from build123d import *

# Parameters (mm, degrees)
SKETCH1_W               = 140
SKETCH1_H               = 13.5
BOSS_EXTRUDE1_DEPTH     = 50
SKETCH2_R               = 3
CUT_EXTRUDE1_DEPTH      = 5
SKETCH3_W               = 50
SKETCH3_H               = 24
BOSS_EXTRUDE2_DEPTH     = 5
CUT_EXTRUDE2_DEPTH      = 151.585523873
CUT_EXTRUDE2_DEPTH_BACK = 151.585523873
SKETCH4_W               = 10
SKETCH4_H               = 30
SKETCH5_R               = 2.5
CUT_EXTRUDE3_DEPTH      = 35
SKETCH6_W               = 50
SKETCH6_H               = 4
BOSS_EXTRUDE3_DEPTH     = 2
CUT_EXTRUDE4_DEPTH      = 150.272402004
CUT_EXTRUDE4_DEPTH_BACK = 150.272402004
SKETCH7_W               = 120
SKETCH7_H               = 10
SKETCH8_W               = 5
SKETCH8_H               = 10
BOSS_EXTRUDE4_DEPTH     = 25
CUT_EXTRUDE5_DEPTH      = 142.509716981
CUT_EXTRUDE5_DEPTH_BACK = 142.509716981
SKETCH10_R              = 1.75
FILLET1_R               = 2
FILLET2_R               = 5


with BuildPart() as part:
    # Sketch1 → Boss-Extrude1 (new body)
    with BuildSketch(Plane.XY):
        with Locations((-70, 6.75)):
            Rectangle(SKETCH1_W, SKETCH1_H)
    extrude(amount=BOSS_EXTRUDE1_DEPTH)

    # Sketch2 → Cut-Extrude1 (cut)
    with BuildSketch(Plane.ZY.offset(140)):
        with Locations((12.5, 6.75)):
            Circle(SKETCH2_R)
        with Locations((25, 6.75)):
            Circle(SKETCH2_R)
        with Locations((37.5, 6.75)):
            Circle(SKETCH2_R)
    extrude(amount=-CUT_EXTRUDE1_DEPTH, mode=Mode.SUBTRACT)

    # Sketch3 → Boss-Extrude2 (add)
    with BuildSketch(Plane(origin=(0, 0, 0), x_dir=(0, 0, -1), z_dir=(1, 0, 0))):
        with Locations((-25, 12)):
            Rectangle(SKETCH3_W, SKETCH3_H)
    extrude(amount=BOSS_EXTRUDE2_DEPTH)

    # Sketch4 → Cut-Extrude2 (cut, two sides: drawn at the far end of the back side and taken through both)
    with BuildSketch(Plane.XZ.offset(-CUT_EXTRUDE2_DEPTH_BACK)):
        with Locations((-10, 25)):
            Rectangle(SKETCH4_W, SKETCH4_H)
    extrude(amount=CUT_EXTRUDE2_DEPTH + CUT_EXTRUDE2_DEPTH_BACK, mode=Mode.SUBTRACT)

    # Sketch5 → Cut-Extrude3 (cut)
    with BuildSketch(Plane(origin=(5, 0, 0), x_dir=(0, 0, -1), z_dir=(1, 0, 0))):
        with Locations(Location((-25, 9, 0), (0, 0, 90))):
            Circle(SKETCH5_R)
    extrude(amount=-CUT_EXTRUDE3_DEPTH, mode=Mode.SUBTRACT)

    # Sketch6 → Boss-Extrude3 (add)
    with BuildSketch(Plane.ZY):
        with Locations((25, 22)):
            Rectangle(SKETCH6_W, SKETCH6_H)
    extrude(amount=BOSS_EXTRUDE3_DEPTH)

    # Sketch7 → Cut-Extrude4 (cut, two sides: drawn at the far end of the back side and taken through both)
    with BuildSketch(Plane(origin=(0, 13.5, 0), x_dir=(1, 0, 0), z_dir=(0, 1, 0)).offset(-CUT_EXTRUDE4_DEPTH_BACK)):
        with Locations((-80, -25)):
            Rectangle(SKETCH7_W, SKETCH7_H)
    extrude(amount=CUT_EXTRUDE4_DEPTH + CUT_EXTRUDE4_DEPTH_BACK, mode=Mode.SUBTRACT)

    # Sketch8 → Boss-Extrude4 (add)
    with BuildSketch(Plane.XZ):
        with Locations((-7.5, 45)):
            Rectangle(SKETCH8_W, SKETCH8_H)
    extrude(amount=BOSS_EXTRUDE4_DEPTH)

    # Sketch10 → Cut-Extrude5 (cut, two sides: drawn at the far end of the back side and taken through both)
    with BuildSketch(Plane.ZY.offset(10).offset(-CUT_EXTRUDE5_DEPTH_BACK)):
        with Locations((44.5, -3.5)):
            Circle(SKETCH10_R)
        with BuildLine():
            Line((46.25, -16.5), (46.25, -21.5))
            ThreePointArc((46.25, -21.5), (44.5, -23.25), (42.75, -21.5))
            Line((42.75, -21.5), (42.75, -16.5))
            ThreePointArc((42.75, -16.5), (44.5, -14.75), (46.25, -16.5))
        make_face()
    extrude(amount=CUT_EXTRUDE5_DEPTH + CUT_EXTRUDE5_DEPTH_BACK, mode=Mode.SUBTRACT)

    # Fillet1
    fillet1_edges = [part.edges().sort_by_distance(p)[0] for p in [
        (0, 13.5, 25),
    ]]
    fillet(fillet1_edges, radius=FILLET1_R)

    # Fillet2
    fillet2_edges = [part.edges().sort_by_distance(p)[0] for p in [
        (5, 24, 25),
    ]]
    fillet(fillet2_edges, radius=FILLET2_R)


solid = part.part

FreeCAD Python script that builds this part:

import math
import FreeCAD as App
import Part
import Sketcher
from FreeCAD import Vector


def edges_at(feature, points):
    """Names of the edges that pass closest to the given points."""
    edges = feature.Shape.Edges
    near = lambda p: min(range(len(edges)), key=lambda i: edges[i].distToShape(Part.Vertex(*p))[0])
    return sorted({f"Edge{near(p) + 1}" for p in points})

doc = App.newDocument("Part")
body = doc.addObject("PartDesign::Body", "Body")

sketch1 = body.newObject("Sketcher::SketchObject", "Sketch")
sketch1.AttachmentSupport = (doc.getObject("XY_Plane"), [""])
sketch1.MapMode = "FlatFace"
sketch1.addGeometry([
    Part.LineSegment(Vector(-140, 14, 0), Vector(-140, 0, 0)),
    Part.LineSegment(Vector(-140, 0, 0), Vector(0, 0, 0)),
    Part.LineSegment(Vector(0, 0, 0), Vector(0, 14, 0)),
    Part.LineSegment(Vector(0, 14, 0), Vector(-140, 14, 0)),
], False)
sketch1.addConstraint([
    Sketcher.Constraint("Coincident", 0, 2, 1, 1),
    Sketcher.Constraint("Coincident", 1, 2, 2, 1),
    Sketcher.Constraint("Coincident", 2, 2, 3, 1),
    Sketcher.Constraint("Coincident", 3, 2, 0, 1),
    Sketcher.Constraint("Vertical", 0),
    Sketcher.Constraint("Horizontal", 1),
    Sketcher.Constraint("Vertical", 2),
    Sketcher.Constraint("Horizontal", 3),
    Sketcher.Constraint("Coincident", 1, 2, -1, 1),
    Sketcher.Constraint("DistanceX", 1, 1, 1, 2, 140.0),
    Sketcher.Constraint("DistanceY", 0, 2, 0, 1, 13.5),
])
pad1 = body.newObject("PartDesign::Pad", "Pad")
pad1.Profile = sketch1
pad1.Length = 50

sketch2 = body.newObject("Sketcher::SketchObject", "Sketch001")
sketch2.AttachmentSupport = (doc.getObject("YZ_Plane"), [""])
sketch2.MapMode = "FlatFace"
sketch2.AttachmentOffset = App.Placement(Vector(0, 0, -140), App.Rotation())
sketch2.addGeometry([
    Part.Circle(Vector(6.8, 12.5, 0), Vector(0, 0, 1), 3),
    Part.Circle(Vector(6.8, 25, 0), Vector(0, 0, 1), 3),
    Part.Circle(Vector(6.8, 37.5, 0), Vector(0, 0, 1), 3),
], False)
sketch2.addConstraint([
    Sketcher.Constraint("Equal", 0, 1),
    Sketcher.Constraint("Equal", 1, 2),
    Sketcher.Constraint("Vertical", 0, 3, 1, 3),
    Sketcher.Constraint("Vertical", 1, 3, 2, 3),
    Sketcher.Constraint("Diameter", 0, 6.0),
    Sketcher.Constraint("DistanceY", -1, 1, 1, 3, 25.0),
    Sketcher.Constraint("DistanceY", 0, 3, 2, 3, 25.0),
    Sketcher.Constraint("DistanceY", -1, 1, 0, 3, 12.5),
    Sketcher.Constraint("DistanceX", -1, 1, 0, 3, 6.75),
])
pocket1 = body.newObject("PartDesign::Pocket", "Pocket")
pocket1.Profile = sketch2
pocket1.Length = 5
pocket1.Reversed = True

sketch3 = body.newObject("Sketcher::SketchObject", "Sketch002")
sketch3.AttachmentSupport = (doc.getObject("YZ_Plane"), [""])
sketch3.MapMode = "FlatFace"
sketch3.addGeometry([
    Part.LineSegment(Vector(24, 50, 0), Vector(0, 50, 0)),
    Part.LineSegment(Vector(0, 50, 0), Vector(0, 0, 0)),
    Part.LineSegment(Vector(0, 0, 0), Vector(24, 0, 0)),
    Part.LineSegment(Vector(24, 0, 0), Vector(24, 50, 0)),
], False)
sketch3.addConstraint([
    Sketcher.Constraint("Coincident", 0, 2, 1, 1),
    Sketcher.Constraint("Coincident", 1, 2, 2, 1),
    Sketcher.Constraint("Coincident", 2, 2, 3, 1),
    Sketcher.Constraint("Coincident", 3, 2, 0, 1),
    Sketcher.Constraint("Horizontal", 0),
    Sketcher.Constraint("Vertical", 1),
    Sketcher.Constraint("Horizontal", 2),
    Sketcher.Constraint("Vertical", 3),
    Sketcher.Constraint("Coincident", 1, 2, -1, 1),
    Sketcher.Constraint("DistanceX", 0, 2, 0, 1, 24.0),
    Sketcher.Constraint("DistanceY", 1, 2, 1, 1, 50.0),
])
pad2 = body.newObject("PartDesign::Pad", "Pad001")
pad2.Profile = sketch3
pad2.Length = 5

sketch4 = body.newObject("Sketcher::SketchObject", "Sketch003")
sketch4.AttachmentSupport = (doc.getObject("XZ_Plane"), [""])
sketch4.MapMode = "FlatFace"
sketch4.addGeometry([
    Part.LineSegment(Vector(-15, 40, 0), Vector(-15, 10, 0)),
    Part.LineSegment(Vector(-15, 10, 0), Vector(-5, 10, 0)),
    Part.LineSegment(Vector(-5, 10, 0), Vector(-5, 40, 0)),
    Part.LineSegment(Vector(-5, 40, 0), Vector(-15, 40, 0)),
], False)
sketch4.addConstraint([
    Sketcher.Constraint("Coincident", 0, 2, 1, 1),
    Sketcher.Constraint("Coincident", 1, 2, 2, 1),
    Sketcher.Constraint("Coincident", 2, 2, 3, 1),
    Sketcher.Constraint("Coincident", 3, 2, 0, 1),
    Sketcher.Constraint("Vertical", 0),
    Sketcher.Constraint("Horizontal", 1),
    Sketcher.Constraint("Vertical", 2),
    Sketcher.Constraint("Horizontal", 3),
    Sketcher.Constraint("DistanceX", 1, 1, 1, 2, 10.0),
    Sketcher.Constraint("DistanceY", 0, 2, 0, 1, 30.0),
    Sketcher.Constraint("DistanceX", 0, 2, -1, 1, 15.0),
    Sketcher.Constraint("DistanceY", -1, 1, 0, 2, 10.0),
])
pocket2 = body.newObject("PartDesign::Pocket", "Pocket001")
pocket2.Profile = sketch4
pocket2.Type = "ThroughAll"
pocket2.Midplane = True

sketch5 = body.newObject("Sketcher::SketchObject", "Sketch004")
sketch5.AttachmentSupport = (doc.getObject("YZ_Plane"), [""])
sketch5.MapMode = "FlatFace"
sketch5.AttachmentOffset = App.Placement(Vector(0, 0, 5), App.Rotation())
sketch5.addGeometry(Part.Circle(Vector(9, 25, 0), Vector(0, 0, 1), 2.5), False)
sketch5.addConstraint([
    Sketcher.Constraint("Diameter", 0, 5.0),
    Sketcher.Constraint("DistanceX", -1, 1, 0, 3, 9.0),
    Sketcher.Constraint("DistanceY", -1, 1, 0, 3, 25.0),
])
pocket3 = body.newObject("PartDesign::Pocket", "Pocket002")
pocket3.Profile = sketch5
pocket3.Length = 35

sketch6 = body.newObject("Sketcher::SketchObject", "Sketch005")
sketch6.AttachmentSupport = (doc.getObject("YZ_Plane"), [""])
sketch6.MapMode = "FlatFace"
sketch6.addGeometry([
    Part.LineSegment(Vector(24, 0, 0), Vector(20, 0, 0)),
    Part.LineSegment(Vector(20, 0, 0), Vector(20, 50, 0)),
    Part.LineSegment(Vector(20, 50, 0), Vector(24, 50, 0)),
    Part.LineSegment(Vector(24, 50, 0), Vector(24, 0, 0)),
], False)
sketch6.addConstraint([
    Sketcher.Constraint("Coincident", 0, 2, 1, 1),
    Sketcher.Constraint("Coincident", 1, 2, 2, 1),
    Sketcher.Constraint("Coincident", 2, 2, 3, 1),
    Sketcher.Constraint("Coincident", 3, 2, 0, 1),
    Sketcher.Constraint("Horizontal", 0),
    Sketcher.Constraint("Vertical", 1),
    Sketcher.Constraint("Horizontal", 2),
    Sketcher.Constraint("Vertical", 3),
    Sketcher.Constraint("PointOnObject", 0, 2, -1),
    Sketcher.Constraint("DistanceX", 0, 2, 0, 1, 4.0),
    Sketcher.Constraint("DistanceY", 1, 1, 1, 2, 50.0),
    Sketcher.Constraint("DistanceX", -1, 1, 0, 2, 20.0),
])
pad3 = body.newObject("PartDesign::Pad", "Pad002")
pad3.Profile = sketch6
pad3.Length = 2
pad3.Reversed = True

sketch7 = body.newObject("Sketcher::SketchObject", "Sketch006")
sketch7.AttachmentSupport = (doc.getObject("XZ_Plane"), [""])
sketch7.MapMode = "FlatFace"
sketch7.AttachmentOffset = App.Placement(Vector(0, 0, -13.5), App.Rotation())
sketch7.addGeometry([
    Part.LineSegment(Vector(-140, 20, 0), Vector(-140, 30, 0)),
    Part.LineSegment(Vector(-140, 30, 0), Vector(-20, 30, 0)),
    Part.LineSegment(Vector(-20, 30, 0), Vector(-20, 20, 0)),
    Part.LineSegment(Vector(-20, 20, 0), Vector(-140, 20, 0)),
], False)
sketch7.addConstraint([
    Sketcher.Constraint("Coincident", 0, 2, 1, 1),
    Sketcher.Constraint("Coincident", 1, 2, 2, 1),
    Sketcher.Constraint("Coincident", 2, 2, 3, 1),
    Sketcher.Constraint("Coincident", 3, 2, 0, 1),
    Sketcher.Constraint("Vertical", 0),
    Sketcher.Constraint("Horizontal", 1),
    Sketcher.Constraint("Vertical", 2),
    Sketcher.Constraint("Horizontal", 3),
    Sketcher.Constraint("DistanceX", 1, 1, 1, 2, 120.0),
    Sketcher.Constraint("DistanceY", 0, 1, 0, 2, 10.0),
    Sketcher.Constraint("DistanceX", 0, 2, -1, 1, 140.0),
    Sketcher.Constraint("DistanceY", -1, 1, 0, 2, 30.0),
])
pocket4 = body.newObject("PartDesign::Pocket", "Pocket003")
pocket4.Profile = sketch7
pocket4.Type = "ThroughAll"
pocket4.Midplane = True

sketch8 = body.newObject("Sketcher::SketchObject", "Sketch007")
sketch8.AttachmentSupport = (doc.getObject("XZ_Plane"), [""])
sketch8.MapMode = "FlatFace"
sketch8.addGeometry([
    Part.LineSegment(Vector(-10, 50, 0), Vector(-10, 40, 0)),
    Part.LineSegment(Vector(-10, 40, 0), Vector(-5, 40, 0)),
    Part.LineSegment(Vector(-5, 40, 0), Vector(-5, 50, 0)),
    Part.LineSegment(Vector(-5, 50, 0), Vector(-10, 50, 0)),
], False)
sketch8.addConstraint([
    Sketcher.Constraint("Coincident", 0, 2, 1, 1),
    Sketcher.Constraint("Coincident", 1, 2, 2, 1),
    Sketcher.Constraint("Coincident", 2, 2, 3, 1),
    Sketcher.Constraint("Coincident", 3, 2, 0, 1),
    Sketcher.Constraint("Vertical", 0),
    Sketcher.Constraint("Horizontal", 1),
    Sketcher.Constraint("Vertical", 2),
    Sketcher.Constraint("Horizontal", 3),
    Sketcher.Constraint("DistanceX", 1, 1, 1, 2, 5.0),
    Sketcher.Constraint("DistanceY", 0, 2, 0, 1, 10.0),
    Sketcher.Constraint("DistanceX", 0, 2, -1, 1, 10.0),
    Sketcher.Constraint("DistanceY", -1, 1, 0, 2, 40.0),
])
pad4 = body.newObject("PartDesign::Pad", "Pad003")
pad4.Profile = sketch8
pad4.Length = 25

sketch9 = body.newObject("Sketcher::SketchObject", "Sketch008")
sketch9.AttachmentSupport = (doc.getObject("YZ_Plane"), [""])
sketch9.MapMode = "FlatFace"
sketch9.AttachmentOffset = App.Placement(Vector(0, 0, -10), App.Rotation())
sketch9.addGeometry([
    Part.Circle(Vector(-3.5, 44.5, 0), Vector(0, 0, 1), 1.8),
    Part.LineSegment(Vector(-21.5, 46.2, 0), Vector(-16.5, 46.2, 0)),
    Part.ArcOfCircle(Part.Circle(Vector(-16.5, 44.5, 0), Vector(0, 0, 1), 1.8), math.radians(-90), math.radians(90)),
    Part.LineSegment(Vector(-16.5, 42.8, 0), Vector(-21.5, 42.8, 0)),
    Part.ArcOfCircle(Part.Circle(Vector(-21.5, 44.5, 0), Vector(0, 0, 1), 1.8), math.radians(90), math.radians(270)),
], False)
sketch9.addConstraint([
    Sketcher.Constraint("Tangent", 1, 2, 2, 2),
    Sketcher.Constraint("Tangent", 2, 1, 3, 1),
    Sketcher.Constraint("Tangent", 3, 2, 4, 2),
    Sketcher.Constraint("Tangent", 4, 1, 1, 1),
    Sketcher.Constraint("Horizontal", 1),
    Sketcher.Constraint("Horizontal", 3),
    Sketcher.Constraint("Equal", 0, 2),
    Sketcher.Constraint("Horizontal", 0, 3, 2, 3),
    Sketcher.Constraint("Diameter", 0, 3.5),
    Sketcher.Constraint("DistanceX", 1, 1, 1, 2, 5.0),
    Sketcher.Constraint("DistanceX", 2, 3, 0, 3, 13.0),
    Sketcher.Constraint("DistanceX", 0, 3, -1, 1, 3.5),
    Sketcher.Constraint("DistanceY", -1, 1, 0, 3, 44.5),
])
pocket5 = body.newObject("PartDesign::Pocket", "Pocket004")
pocket5.Profile = sketch9
pocket5.Type = "ThroughAll"
pocket5.Midplane = True
doc.recompute()

fillet = body.newObject("PartDesign::Fillet", "Fillet")
fillet.Base = (pocket5, edges_at(pocket5, [(0, 13.5, 25)]))
fillet.Radius = 2
doc.recompute()

fillet2 = body.newObject("PartDesign::Fillet", "Fillet001")
fillet2.Base = (fillet, edges_at(fillet, [(5, 24, 25)]))
fillet2.Radius = 5

doc.recompute()
